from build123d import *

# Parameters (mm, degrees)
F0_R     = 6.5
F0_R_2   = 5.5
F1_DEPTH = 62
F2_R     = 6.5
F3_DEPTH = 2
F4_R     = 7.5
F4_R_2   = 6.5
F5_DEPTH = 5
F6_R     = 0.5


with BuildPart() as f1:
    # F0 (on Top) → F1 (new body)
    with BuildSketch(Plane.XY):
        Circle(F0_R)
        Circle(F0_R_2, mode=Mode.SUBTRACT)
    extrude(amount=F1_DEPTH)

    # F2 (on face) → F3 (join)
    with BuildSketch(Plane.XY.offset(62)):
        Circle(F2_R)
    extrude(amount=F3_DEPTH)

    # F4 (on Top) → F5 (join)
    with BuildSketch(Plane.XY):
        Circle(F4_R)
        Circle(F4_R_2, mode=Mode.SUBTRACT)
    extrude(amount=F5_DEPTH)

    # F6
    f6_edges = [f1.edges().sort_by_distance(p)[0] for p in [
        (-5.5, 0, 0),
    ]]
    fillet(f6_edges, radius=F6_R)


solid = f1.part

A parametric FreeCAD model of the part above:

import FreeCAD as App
import Part
import Sketcher


def edges_at(feature, points):
    """Names of the edges that pass closest to the given points."""
    edges = feature.Shape.Edges
    near = lambda p: min(range(len(edges)), key=lambda i: edges[i].distToShape(Part.Vertex(*p))[0])
    return sorted({f"Edge{near(p) + 1}" for p in points})

doc = App.newDocument("Part")
params = doc.addObject("Spreadsheet::Sheet", "Params")
for row, (alias, value) in enumerate([
    ("sketch1_diameter", "13 mm"),
    ("sketch1_diameter2", "11 mm"),
    ("pad1_length", "62 mm"),
    ("sketch2_diameter", "13 mm"),
    ("pad2_length", "2 mm"),
    ("sketch3_diameter", "15 mm"),
    ("sketch3_diameter2", "13 mm"),
    ("pad3_length", "5 mm"),
    ("fillet_radius", "0.5 mm"),
], start=1):
    params.set(f"A{row}", alias)
    params.set(f"B{row}", "=" + value)
    params.setAlias(f"B{row}", alias)

body = doc.addObject("PartDesign::Body", "Body")

# Sketch on XY plane
sketch1 = doc.addObject("Sketcher::SketchObject", "Sketch")
body.addObject(sketch1)
sketch1.AttachmentSupport = (doc.XY_Plane, [""])
sketch1.MapMode = "FlatFace"
sketch1.addGeometry([
    Part.Circle(App.Vector(0, 0, 0), App.Vector(0, 0, 1), 6.5),
    Part.Circle(App.Vector(0, 0, 0), App.Vector(0, 0, 1), 5.5),
], False)
sketch1.addConstraint([
    Sketcher.Constraint("Coincident", 0, 3, -1, 1),
    Sketcher.Constraint("Coincident", 1, 3, -1, 1),
    Sketcher.Constraint("Diameter", 0, 13.0),
    Sketcher.Constraint("Diameter", 1, 11.0),
])
sketch1.setExpression("Constraints[2]", "Params.sketch1_diameter")
sketch1.setExpression("Constraints[3]", "Params.sketch1_diameter2")
pad1 = doc.addObject("PartDesign::Pad", "Pad")
body.addObject(pad1)
pad1.Profile = sketch1
pad1.setExpression("Length", "Params.pad1_length")

# Sketch on XY plane
sketch2 = doc.addObject("Sketcher::SketchObject", "Sketch001")
body.addObject(sketch2)
sketch2.AttachmentSupport = (doc.XY_Plane, [""])
sketch2.MapMode = "FlatFace"
sketch2.AttachmentOffset = App.Placement(App.Vector(0, 0, 62), App.Rotation())
sketch2.addGeometry(Part.Circle(App.Vector(0, 0, 0), App.Vector(0, 0, 1), 6.5), False)
sketch2.addConstraint([
    Sketcher.Constraint("Coincident", 0, 3, -1, 1),
    Sketcher.Constraint("Diameter", 0, 13.0),
])
sketch2.setExpression("Constraints[1]", "Params.sketch2_diameter")
pad2 = doc.addObject("PartDesign::Pad", "Pad001")
body.addObject(pad2)
pad2.Profile = sketch2
pad2.setExpression("Length", "Params.pad2_length")

# Sketch on XY plane
sketch3 = doc.addObject("Sketcher::SketchObject", "Sketch002")
body.addObject(sketch3)
sketch3.AttachmentSupport = (doc.XY_Plane, [""])
sketch3.MapMode = "FlatFace"
sketch3.addGeometry([
    Part.Circle(App.Vector(0, 0, 0), App.Vector(0, 0, 1), 7.5),
    Part.Circle(App.Vector(0, 0, 0), App.Vector(0, 0, 1), 6.5),
], False)
sketch3.addConstraint([
    Sketcher.Constraint("Coincident", 0, 3, -1, 1),
    Sketcher.Constraint("Coincident", 1, 3, -1, 1),
    Sketcher.Constraint("Diameter", 0, 15.0),
    Sketcher.Constraint("Diameter", 1, 13.0),
])
sketch3.setExpression("Constraints[2]", "Params.sketch3_diameter")
sketch3.setExpression("Constraints[3]", "Params.sketch3_diameter2")
pad3 = doc.addObject("PartDesign::Pad", "Pad002")
body.addObject(pad3)
pad3.Profile = sketch3
pad3.setExpression("Length", "Params.pad3_length")
doc.recompute()

fillet = doc.addObject("PartDesign::Fillet", "Fillet")
body.addObject(fillet)
fillet.Base = (pad3, edges_at(pad3, [(-5.5, 0, 0)]))
fillet.setExpression("Radius", "Params.fillet_radius")

doc.recompute()
